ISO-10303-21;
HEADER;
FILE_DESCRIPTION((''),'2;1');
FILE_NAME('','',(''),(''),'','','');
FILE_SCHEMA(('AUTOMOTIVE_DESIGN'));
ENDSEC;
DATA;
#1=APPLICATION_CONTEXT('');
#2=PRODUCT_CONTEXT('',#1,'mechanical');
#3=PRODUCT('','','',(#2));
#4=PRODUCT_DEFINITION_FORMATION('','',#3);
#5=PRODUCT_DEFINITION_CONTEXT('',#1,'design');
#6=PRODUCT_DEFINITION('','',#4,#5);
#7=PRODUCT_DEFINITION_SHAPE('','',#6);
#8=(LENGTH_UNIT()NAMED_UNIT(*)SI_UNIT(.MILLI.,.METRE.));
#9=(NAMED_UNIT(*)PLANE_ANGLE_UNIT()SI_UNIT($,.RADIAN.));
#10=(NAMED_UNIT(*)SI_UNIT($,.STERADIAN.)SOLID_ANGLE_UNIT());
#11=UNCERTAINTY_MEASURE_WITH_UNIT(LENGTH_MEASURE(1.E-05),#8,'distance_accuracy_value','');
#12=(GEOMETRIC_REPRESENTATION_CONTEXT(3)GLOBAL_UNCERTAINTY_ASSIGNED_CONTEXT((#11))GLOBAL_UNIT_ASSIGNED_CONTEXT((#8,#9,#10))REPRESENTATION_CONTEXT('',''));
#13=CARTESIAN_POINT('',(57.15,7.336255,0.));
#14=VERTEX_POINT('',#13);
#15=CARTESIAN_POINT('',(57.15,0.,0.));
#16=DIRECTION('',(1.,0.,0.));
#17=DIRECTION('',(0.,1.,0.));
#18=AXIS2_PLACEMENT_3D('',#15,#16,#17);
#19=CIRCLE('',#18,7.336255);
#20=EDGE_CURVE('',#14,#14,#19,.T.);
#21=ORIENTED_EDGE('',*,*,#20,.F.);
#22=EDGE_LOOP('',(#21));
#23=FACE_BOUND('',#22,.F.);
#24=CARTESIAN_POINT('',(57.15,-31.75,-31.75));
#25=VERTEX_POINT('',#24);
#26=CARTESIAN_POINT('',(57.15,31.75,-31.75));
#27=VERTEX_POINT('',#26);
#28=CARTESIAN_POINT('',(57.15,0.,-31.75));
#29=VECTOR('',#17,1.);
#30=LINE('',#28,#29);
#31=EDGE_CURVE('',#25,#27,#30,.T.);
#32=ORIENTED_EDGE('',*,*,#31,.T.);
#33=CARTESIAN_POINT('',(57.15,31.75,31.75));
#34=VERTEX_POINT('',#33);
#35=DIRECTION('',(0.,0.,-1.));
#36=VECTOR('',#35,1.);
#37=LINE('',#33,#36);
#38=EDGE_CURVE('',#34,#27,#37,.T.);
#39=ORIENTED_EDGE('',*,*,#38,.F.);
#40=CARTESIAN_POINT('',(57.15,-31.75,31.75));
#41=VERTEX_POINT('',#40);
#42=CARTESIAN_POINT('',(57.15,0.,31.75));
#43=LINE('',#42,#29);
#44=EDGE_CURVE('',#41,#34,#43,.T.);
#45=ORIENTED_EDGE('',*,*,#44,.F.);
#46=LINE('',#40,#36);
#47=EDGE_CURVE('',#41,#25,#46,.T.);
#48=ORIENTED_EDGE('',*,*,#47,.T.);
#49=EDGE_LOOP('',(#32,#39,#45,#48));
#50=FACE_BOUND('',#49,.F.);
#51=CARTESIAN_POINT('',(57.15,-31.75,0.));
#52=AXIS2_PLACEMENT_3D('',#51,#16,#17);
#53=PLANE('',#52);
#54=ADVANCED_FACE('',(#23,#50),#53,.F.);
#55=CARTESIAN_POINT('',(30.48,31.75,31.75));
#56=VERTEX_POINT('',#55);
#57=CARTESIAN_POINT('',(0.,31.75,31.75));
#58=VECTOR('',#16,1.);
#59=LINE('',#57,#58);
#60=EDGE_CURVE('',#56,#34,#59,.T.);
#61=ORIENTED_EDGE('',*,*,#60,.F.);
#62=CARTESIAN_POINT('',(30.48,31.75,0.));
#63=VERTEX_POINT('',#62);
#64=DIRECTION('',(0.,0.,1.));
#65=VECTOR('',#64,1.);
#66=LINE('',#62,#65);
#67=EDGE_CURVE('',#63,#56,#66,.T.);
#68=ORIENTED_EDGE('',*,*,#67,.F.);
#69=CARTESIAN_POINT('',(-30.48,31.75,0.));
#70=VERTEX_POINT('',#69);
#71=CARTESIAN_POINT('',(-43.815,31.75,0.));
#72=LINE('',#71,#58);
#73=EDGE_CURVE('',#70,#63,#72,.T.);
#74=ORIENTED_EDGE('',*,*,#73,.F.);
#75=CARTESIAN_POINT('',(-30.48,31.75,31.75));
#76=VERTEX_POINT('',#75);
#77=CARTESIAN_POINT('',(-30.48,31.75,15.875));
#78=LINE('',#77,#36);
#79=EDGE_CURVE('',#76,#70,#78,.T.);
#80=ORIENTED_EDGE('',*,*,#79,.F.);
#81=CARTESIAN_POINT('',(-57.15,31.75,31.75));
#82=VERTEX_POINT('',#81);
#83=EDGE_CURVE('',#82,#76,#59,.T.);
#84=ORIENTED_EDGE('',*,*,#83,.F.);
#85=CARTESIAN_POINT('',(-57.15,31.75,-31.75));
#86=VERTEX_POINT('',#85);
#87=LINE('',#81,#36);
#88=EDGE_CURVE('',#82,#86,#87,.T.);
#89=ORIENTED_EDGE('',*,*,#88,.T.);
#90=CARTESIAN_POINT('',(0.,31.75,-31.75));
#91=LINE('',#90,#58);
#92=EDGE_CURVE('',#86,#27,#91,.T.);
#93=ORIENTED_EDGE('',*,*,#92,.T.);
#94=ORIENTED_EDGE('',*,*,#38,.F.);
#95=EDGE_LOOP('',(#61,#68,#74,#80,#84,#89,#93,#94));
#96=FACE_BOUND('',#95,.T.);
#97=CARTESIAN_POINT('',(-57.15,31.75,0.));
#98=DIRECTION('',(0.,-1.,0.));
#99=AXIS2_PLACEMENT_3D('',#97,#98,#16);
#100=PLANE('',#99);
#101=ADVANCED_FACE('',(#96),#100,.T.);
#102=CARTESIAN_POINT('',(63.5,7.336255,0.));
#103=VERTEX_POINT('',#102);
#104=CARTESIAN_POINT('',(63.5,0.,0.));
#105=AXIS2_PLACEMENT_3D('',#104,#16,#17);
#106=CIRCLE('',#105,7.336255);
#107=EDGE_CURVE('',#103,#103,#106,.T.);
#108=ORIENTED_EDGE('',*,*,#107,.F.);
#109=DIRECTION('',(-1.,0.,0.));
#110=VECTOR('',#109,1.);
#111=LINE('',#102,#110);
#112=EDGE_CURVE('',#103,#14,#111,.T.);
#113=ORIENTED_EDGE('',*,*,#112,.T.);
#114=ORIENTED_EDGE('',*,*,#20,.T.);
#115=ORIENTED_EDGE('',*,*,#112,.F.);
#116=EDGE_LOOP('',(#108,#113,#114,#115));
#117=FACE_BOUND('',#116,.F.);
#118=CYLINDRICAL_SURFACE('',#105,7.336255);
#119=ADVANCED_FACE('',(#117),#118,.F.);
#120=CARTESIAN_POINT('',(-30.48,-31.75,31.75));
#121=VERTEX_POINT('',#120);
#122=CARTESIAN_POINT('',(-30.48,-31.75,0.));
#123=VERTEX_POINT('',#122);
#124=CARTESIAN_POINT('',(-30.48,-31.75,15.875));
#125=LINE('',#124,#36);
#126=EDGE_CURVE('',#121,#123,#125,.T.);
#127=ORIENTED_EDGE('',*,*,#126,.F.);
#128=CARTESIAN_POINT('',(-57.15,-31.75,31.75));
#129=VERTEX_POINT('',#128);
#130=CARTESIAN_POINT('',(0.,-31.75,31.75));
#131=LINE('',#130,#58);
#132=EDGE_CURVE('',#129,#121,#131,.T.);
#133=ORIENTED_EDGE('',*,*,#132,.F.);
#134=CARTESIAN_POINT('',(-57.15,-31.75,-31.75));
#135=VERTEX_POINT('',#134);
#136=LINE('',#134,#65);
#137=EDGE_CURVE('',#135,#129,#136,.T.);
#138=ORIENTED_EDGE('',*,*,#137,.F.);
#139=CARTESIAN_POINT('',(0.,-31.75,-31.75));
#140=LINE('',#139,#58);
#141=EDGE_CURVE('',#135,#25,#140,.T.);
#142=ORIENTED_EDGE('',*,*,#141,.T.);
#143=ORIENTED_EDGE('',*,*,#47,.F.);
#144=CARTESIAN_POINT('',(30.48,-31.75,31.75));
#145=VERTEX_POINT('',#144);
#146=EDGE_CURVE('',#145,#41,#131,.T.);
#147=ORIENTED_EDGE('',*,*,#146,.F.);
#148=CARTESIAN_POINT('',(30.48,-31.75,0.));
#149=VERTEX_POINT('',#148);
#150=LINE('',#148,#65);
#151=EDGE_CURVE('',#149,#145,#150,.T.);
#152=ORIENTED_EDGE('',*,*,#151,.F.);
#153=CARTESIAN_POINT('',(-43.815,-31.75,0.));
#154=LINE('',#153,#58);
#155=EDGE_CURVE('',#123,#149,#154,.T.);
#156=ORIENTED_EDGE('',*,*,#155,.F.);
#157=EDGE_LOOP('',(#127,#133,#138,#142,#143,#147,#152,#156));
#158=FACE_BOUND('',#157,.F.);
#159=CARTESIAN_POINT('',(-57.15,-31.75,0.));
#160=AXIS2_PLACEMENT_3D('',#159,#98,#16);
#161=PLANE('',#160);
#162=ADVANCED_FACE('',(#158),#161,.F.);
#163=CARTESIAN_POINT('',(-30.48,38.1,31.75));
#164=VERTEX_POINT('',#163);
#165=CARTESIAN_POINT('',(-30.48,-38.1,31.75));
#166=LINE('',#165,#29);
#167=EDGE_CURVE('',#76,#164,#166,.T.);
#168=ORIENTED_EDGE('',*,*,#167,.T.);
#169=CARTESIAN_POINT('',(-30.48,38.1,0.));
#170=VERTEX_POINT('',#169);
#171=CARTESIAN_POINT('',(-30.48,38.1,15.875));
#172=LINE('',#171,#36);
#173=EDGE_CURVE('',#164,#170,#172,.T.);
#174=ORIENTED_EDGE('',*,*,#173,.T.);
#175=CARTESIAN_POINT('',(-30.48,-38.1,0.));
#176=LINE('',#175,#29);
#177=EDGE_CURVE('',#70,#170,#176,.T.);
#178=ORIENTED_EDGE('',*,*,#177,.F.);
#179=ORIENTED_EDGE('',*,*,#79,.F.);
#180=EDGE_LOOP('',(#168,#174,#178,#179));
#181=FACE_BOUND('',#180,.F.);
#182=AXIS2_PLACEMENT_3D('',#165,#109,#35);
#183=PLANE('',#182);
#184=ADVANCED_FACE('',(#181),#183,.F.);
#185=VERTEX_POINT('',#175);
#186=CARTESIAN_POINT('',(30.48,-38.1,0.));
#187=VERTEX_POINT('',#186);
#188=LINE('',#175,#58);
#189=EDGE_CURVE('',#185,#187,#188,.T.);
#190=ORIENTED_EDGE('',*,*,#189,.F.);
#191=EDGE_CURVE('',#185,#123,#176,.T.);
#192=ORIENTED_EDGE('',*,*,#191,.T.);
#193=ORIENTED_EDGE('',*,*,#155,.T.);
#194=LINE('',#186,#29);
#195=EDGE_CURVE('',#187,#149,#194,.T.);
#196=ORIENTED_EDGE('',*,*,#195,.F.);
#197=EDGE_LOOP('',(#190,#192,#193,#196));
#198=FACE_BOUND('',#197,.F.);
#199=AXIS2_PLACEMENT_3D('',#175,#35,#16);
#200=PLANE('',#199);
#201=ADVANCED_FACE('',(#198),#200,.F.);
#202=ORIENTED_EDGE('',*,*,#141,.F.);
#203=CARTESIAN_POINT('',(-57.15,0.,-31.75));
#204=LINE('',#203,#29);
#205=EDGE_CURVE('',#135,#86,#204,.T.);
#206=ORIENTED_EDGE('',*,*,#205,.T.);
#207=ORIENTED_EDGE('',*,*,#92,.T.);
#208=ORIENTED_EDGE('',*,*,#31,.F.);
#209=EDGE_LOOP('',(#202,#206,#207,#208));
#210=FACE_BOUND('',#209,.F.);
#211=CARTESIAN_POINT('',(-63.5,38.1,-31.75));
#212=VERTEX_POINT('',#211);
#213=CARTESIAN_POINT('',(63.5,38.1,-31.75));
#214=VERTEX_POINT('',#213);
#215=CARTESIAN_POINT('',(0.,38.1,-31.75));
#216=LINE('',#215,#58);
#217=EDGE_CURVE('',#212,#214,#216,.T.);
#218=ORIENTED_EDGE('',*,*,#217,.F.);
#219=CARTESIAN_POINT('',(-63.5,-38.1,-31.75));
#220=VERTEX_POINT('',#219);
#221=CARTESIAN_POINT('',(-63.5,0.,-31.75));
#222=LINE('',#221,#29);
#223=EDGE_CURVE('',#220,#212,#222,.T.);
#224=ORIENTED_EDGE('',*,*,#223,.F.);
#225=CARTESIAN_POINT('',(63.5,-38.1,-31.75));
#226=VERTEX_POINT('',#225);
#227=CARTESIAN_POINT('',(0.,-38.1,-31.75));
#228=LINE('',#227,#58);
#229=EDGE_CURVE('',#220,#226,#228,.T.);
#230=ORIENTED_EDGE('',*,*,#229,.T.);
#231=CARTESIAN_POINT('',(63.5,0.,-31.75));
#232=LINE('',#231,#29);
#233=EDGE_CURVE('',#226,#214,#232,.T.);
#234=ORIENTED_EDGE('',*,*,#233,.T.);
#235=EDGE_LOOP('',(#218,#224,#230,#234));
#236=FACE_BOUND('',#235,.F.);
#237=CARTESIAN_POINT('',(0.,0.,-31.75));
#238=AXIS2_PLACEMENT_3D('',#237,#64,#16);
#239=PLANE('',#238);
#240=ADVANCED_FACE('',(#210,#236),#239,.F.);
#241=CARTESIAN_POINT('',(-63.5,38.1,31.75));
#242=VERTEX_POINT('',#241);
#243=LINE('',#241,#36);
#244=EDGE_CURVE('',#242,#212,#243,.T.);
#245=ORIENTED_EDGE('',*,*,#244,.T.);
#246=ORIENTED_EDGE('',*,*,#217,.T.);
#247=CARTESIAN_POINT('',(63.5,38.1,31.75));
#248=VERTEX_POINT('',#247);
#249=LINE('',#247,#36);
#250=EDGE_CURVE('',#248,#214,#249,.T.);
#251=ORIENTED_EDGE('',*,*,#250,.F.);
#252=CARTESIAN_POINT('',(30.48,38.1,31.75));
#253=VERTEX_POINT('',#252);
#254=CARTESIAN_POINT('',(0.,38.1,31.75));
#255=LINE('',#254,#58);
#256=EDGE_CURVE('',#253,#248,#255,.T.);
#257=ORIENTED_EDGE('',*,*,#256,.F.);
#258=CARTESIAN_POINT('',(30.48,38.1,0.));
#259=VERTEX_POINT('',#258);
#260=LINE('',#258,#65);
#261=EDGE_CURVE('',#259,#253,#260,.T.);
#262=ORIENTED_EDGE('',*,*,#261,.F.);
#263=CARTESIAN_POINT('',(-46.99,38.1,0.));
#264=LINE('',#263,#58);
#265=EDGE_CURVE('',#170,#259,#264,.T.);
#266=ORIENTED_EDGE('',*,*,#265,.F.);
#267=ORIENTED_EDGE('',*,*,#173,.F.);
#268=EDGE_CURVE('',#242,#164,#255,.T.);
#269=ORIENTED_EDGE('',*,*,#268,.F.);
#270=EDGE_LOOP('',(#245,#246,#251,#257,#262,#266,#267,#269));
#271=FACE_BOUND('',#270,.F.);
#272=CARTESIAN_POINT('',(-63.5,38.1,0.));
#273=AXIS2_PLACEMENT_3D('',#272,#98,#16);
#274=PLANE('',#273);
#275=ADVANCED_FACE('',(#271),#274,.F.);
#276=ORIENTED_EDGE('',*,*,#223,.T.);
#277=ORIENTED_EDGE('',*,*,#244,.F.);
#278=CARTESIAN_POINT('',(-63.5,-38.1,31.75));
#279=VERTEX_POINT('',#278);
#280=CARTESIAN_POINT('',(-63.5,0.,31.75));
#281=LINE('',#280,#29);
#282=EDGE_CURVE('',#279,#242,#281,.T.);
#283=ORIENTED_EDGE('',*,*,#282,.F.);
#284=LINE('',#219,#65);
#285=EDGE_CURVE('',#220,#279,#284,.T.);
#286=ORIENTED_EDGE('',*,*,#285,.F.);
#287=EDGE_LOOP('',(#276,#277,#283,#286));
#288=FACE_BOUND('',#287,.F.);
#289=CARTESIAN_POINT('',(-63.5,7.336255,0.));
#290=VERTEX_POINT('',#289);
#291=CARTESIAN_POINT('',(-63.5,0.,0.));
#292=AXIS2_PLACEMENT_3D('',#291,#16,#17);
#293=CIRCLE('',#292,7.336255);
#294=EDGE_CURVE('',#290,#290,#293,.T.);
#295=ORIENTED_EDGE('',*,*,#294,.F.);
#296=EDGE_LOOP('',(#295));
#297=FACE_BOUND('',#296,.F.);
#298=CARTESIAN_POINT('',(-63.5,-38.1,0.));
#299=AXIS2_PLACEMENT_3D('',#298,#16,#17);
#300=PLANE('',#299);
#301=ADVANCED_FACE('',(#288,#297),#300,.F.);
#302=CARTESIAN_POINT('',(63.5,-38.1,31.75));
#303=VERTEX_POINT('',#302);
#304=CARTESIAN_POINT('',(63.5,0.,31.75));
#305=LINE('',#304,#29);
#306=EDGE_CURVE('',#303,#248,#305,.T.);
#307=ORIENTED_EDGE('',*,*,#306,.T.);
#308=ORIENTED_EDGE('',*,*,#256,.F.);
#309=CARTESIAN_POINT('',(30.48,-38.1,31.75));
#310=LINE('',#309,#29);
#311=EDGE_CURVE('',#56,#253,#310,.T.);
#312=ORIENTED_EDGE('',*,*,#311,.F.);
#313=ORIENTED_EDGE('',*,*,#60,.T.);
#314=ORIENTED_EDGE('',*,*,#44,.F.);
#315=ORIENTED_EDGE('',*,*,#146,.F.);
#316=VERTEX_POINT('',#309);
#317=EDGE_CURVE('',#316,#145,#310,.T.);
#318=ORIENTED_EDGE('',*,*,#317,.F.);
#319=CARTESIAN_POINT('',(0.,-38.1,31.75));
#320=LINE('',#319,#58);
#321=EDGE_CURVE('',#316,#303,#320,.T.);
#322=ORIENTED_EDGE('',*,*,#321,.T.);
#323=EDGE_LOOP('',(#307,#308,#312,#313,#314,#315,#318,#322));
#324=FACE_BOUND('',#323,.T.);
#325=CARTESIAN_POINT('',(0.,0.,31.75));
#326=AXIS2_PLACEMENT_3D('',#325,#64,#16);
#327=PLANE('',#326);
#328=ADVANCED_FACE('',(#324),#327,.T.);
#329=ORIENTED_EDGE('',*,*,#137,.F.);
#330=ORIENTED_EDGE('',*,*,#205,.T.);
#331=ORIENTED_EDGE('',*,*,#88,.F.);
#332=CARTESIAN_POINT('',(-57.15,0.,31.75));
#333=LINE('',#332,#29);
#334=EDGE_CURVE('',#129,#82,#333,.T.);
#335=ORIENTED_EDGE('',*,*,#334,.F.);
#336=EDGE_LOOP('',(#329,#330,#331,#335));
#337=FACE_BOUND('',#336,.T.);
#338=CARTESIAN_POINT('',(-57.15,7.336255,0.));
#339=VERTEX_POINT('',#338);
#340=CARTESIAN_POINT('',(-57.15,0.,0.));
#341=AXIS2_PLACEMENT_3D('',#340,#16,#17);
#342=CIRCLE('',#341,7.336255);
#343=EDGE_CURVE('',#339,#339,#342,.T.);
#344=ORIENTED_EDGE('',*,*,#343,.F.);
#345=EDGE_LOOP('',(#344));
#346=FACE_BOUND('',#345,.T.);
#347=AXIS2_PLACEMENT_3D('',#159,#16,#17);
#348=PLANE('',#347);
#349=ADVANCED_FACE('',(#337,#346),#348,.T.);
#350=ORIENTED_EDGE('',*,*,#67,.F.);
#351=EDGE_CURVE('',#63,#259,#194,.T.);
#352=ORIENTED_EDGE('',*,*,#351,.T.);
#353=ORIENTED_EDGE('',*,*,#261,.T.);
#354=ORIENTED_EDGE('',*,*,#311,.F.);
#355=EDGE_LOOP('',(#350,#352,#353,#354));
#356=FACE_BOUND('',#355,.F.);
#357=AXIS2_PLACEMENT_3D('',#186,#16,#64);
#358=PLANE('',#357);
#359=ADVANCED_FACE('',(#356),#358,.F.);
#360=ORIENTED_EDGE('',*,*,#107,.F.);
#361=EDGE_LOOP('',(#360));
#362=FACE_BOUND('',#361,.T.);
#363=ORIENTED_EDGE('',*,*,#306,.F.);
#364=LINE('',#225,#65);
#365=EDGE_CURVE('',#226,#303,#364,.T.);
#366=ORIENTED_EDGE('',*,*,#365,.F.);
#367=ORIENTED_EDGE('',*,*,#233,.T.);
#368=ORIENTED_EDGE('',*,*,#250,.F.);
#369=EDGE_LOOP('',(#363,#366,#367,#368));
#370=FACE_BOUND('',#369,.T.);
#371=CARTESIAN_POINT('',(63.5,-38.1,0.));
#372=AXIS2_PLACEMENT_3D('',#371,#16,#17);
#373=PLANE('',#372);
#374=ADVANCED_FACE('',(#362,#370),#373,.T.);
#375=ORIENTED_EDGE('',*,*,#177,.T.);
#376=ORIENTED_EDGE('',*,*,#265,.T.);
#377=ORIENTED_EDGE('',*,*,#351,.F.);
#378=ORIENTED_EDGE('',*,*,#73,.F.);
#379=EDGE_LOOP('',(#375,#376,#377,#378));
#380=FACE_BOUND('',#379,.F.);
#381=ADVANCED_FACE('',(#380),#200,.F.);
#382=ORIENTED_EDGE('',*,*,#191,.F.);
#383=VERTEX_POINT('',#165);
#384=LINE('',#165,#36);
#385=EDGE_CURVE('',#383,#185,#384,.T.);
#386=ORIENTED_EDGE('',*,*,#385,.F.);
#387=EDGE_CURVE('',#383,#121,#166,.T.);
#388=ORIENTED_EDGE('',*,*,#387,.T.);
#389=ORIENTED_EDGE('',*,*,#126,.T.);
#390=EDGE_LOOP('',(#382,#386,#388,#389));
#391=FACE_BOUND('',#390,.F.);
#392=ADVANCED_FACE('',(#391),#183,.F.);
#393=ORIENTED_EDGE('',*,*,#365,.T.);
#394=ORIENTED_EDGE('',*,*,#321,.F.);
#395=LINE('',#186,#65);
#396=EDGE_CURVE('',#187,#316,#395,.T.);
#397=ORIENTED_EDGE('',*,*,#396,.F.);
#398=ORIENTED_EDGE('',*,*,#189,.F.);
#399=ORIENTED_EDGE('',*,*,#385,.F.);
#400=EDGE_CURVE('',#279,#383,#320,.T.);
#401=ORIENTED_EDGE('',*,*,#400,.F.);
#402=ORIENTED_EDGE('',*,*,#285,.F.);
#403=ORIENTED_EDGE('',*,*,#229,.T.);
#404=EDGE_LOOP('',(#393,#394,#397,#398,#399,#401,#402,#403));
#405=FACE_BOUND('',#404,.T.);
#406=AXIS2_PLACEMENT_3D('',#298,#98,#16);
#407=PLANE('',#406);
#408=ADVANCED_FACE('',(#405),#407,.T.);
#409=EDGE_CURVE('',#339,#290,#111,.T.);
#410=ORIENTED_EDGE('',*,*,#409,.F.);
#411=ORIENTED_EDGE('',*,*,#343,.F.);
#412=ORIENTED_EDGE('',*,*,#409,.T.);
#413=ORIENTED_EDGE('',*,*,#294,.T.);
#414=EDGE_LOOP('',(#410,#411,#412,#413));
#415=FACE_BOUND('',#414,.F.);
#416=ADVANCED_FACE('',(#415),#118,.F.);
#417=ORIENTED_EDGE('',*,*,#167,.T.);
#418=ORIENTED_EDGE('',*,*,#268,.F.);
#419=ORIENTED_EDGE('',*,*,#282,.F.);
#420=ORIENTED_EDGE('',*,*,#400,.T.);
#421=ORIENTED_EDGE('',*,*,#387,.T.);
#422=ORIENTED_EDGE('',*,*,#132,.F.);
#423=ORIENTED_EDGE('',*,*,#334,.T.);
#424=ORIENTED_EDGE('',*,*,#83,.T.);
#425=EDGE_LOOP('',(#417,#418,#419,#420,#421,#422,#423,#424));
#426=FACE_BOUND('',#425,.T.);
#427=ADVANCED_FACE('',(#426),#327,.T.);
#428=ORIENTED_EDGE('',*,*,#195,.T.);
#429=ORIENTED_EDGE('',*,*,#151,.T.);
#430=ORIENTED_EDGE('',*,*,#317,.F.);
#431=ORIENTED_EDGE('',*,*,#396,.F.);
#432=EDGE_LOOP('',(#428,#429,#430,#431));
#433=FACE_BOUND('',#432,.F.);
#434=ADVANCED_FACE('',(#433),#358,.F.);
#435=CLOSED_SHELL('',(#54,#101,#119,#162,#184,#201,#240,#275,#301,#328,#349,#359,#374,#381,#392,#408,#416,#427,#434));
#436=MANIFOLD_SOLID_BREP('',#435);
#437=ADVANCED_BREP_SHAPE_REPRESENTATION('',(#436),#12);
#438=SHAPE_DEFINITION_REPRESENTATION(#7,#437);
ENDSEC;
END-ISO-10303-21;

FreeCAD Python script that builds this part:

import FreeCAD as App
import Part
import Sketcher

V = App.Vector
Q = App.Units.Quantity

doc = App.newDocument("Part")
body = doc.addObject("PartDesign::Body", "Body")

# Sketch on XY plane
sketch1 = body.newObject("Sketcher::SketchObject", "Sketch")
sketch1.AttachmentSupport = (doc.getObject("XY_Plane"), [""])
sketch1.MapMode = "FlatFace"
sketch1.addGeometry([
    Part.LineSegment(V(-64, 38, 0), V(-64, -38, 0)),  # 0
    Part.LineSegment(V(-64, -38, 0), V(64, -38, 0)),  # 1
    Part.LineSegment(V(64, -38, 0), V(64, 38, 0)),  # 2
    Part.LineSegment(V(64, 38, 0), V(-64, 38, 0)),  # 3
    Part.LineSegment(V(57, -32, 0), V(-57, -32, 0)),  # 4
    Part.LineSegment(V(-57, -32, 0), V(-57, 32, 0)),  # 5
    Part.LineSegment(V(-57, 32, 0), V(57, 32, 0)),  # 6
    Part.LineSegment(V(57, 32, 0), V(57, -32, 0)),  # 7
], False)
sketch1.addConstraint([
    Sketcher.Constraint("Coincident", 0, 2, 1, 1),
    Sketcher.Constraint("Coincident", 1, 2, 2, 1),
    Sketcher.Constraint("Coincident", 2, 2, 3, 1),
    Sketcher.Constraint("Coincident", 3, 2, 0, 1),
    Sketcher.Constraint("Coincident", 4, 2, 5, 1),
    Sketcher.Constraint("Coincident", 5, 2, 6, 1),
    Sketcher.Constraint("Coincident", 6, 2, 7, 1),
    Sketcher.Constraint("Coincident", 7, 2, 4, 1),
    Sketcher.Constraint("Vertical", 0),
    Sketcher.Constraint("Horizontal", 1),
    Sketcher.Constraint("Vertical", 2),
    Sketcher.Constraint("Horizontal", 3),
    Sketcher.Constraint("Horizontal", 4),
    Sketcher.Constraint("Vertical", 5),
    Sketcher.Constraint("Horizontal", 6),
    Sketcher.Constraint("Vertical", 7),
    Sketcher.Constraint("Symmetric", 0, 2, 2, 2, -1, 1),
    Sketcher.Constraint("Symmetric", 4, 2, 6, 2, -1, 1),
    Sketcher.Constraint("DistanceX", 1, 1, 1, 2, Q("5 in")),
    Sketcher.Constraint("DistanceY", 0, 2, 0, 1, Q("3 in")),
    Sketcher.Constraint("DistanceX", 4, 2, 4, 1, Q("4.5 in")),
    Sketcher.Constraint("DistanceY", 5, 1, 5, 2, Q("2.5 in")),
])
pad1 = body.newObject("PartDesign::Pad", "Pad")
pad1.Profile = sketch1
pad1.Length = Q("2.5 in")
pad1.Midplane = True

# Sketch on XZ plane
sketch2 = body.newObject("Sketcher::SketchObject", "Sketch001")
sketch2.AttachmentSupport = (doc.getObject("XZ_Plane"), [""])
sketch2.MapMode = "FlatFace"
sketch2.AttachmentOffset = App.Placement(V(0, 0, 1.5 * 25.4), App.Rotation())
sketch2.addGeometry([
    Part.LineSegment(V(30, 32, 0), V(-30, 32, 0)),
    Part.LineSegment(V(-30, 32, 0), V(-30, 0, 0)),
    Part.LineSegment(V(-30, 0, 0), V(30, 0, 0)),
    Part.LineSegment(V(30, 0, 0), V(30, 32, 0)),
], False)
sketch2.addConstraint([
    Sketcher.Constraint("Coincident", 0, 2, 1, 1),
    Sketcher.Constraint("Coincident", 1, 2, 2, 1),
    Sketcher.Constraint("Coincident", 2, 2, 3, 1),
    Sketcher.Constraint("Coincident", 3, 2, 0, 1),
    Sketcher.Constraint("Horizontal", 0),
    Sketcher.Constraint("Vertical", 1),
    Sketcher.Constraint("Horizontal", 2),
    Sketcher.Constraint("Vertical", 3),
    Sketcher.Constraint("Symmetric", 1, 2, 2, 2, -1, 1),
    Sketcher.Constraint("DistanceX", 0, 2, 0, 1, Q("2.4 in")),
    Sketcher.Constraint("DistanceY", 1, 2, 1, 1, Q("1.25 in")),
])
pocket1 = body.newObject("PartDesign::Pocket", "Pocket")
pocket1.Profile = sketch2
pocket1.Length = Q("4 in")

# Sketch on YZ plane
sketch3 = body.newObject("Sketcher::SketchObject", "Sketch002")
sketch3.AttachmentSupport = (doc.getObject("YZ_Plane"), [""])
sketch3.MapMode = "FlatFace"
sketch3.AttachmentOffset = App.Placement(V(0, 0, 2.5 * 25.4), App.Rotation())
sketch3.addGeometry(Part.Circle(V(0, 0, 0), V(0, 0, 1), 7), False)
sketch3.addConstraint([
    Sketcher.Constraint("Coincident", 0, 3, -1, 1),
    Sketcher.Constraint("Diameter", 0, 14.67251),
])
pocket2 = body.newObject("PartDesign::Pocket", "Pocket001")
pocket2.Profile = sketch3
pocket2.Length = Q("5 in")

doc.recompute()
